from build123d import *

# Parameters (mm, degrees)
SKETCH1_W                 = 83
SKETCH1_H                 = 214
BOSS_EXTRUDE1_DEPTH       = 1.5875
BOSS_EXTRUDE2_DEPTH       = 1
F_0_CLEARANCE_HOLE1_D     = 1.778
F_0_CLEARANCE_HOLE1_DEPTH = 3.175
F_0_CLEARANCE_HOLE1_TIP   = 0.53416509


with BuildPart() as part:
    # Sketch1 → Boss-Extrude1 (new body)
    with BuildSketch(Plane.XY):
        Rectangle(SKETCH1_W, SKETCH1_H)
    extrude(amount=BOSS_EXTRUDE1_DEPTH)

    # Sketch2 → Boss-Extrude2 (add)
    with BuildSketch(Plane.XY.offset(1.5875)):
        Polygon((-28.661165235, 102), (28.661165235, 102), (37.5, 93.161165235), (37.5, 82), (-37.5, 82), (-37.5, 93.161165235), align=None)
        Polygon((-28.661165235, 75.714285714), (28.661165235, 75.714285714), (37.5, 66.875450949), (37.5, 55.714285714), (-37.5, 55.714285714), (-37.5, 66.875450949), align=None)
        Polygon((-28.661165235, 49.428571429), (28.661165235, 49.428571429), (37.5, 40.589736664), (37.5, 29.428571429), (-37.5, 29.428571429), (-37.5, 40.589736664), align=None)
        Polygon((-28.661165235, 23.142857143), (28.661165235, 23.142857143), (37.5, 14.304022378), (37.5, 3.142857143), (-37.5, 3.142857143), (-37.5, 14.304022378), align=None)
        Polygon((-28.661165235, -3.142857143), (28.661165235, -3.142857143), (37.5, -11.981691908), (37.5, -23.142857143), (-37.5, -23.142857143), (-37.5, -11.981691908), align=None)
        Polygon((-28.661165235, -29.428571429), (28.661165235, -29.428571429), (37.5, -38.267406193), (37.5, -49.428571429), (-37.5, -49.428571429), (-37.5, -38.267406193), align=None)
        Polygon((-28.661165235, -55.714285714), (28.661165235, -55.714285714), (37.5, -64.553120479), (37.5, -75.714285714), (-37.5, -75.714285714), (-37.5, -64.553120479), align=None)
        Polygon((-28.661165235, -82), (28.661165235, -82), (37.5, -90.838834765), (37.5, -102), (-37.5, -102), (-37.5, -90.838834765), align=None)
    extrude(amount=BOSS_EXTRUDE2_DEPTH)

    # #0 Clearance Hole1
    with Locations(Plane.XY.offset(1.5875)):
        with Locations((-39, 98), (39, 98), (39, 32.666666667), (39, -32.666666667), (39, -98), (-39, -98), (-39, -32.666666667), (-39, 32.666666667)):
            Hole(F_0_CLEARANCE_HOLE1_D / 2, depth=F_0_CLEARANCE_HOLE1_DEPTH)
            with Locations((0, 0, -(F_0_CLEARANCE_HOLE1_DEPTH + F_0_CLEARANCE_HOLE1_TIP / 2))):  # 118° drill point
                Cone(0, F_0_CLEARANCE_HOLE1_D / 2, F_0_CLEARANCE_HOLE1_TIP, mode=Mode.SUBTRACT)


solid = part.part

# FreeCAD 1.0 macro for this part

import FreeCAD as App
import Part
import Sketcher


def add_polygon(sketch, points):
    """Adds a closed chain of lines whose ends are joined by coincident constraints."""
    first, n = sketch.GeometryCount, len(points)
    for a, b in zip(points, points[1:] + points[:1]):
        sketch.addGeometry(Part.LineSegment(App.Vector(*a, 0), App.Vector(*b, 0)), False)
    for i in range(n):
        sketch.addConstraint(Sketcher.Constraint("Coincident", first + i, 2, first + (i + 1) % n, 1))

doc = App.newDocument("Part")
body = doc.addObject("PartDesign::Body", "Body")

sketch1 = doc.addObject("Sketcher::SketchObject", "Sketch")
body.addObject(sketch1)
sketch1.AttachmentSupport = (doc.XY_Plane, [""])
sketch1.MapMode = "FlatFace"
add_polygon(sketch1, [(-41.5, 107), (-41.5, -107), (41.5, -107), (41.5, 107)])
sketch1.addConstraint(Sketcher.Constraint("Vertical", 0))
sketch1.addConstraint(Sketcher.Constraint("Horizontal", 1))
sketch1.addConstraint(Sketcher.Constraint("Vertical", 2))
sketch1.addConstraint(Sketcher.Constraint("Horizontal", 3))
sketch1.addConstraint(Sketcher.Constraint("Symmetric", 0, 2, 2, 2, -1, 1))
sketch1.addConstraint(Sketcher.Constraint("DistanceX", 1, 1, 1, 2, 83.0))
sketch1.addConstraint(Sketcher.Constraint("DistanceY", 0, 2, 0, 1, 214.0))
pad1 = doc.addObject("PartDesign::Pad", "Pad")
body.addObject(pad1)
pad1.Profile = sketch1
pad1.Length = 1.5875

sketch2 = doc.addObject("Sketcher::SketchObject", "Sketch001")
body.addObject(sketch2)
sketch2.AttachmentSupport = (doc.XY_Plane, [""])
sketch2.MapMode = "FlatFace"
sketch2.AttachmentOffset = App.Placement(App.Vector(0, 0, 1.5875), App.Rotation())
add_polygon(sketch2, [(28.661165, 102), (-28.661165, 102), (-37.5, 93.161165), (-37.5, 82), (37.5, 82), (37.5, 93.161165)])
add_polygon(sketch2, [(28.661165, 75.714286), (-28.661165, 75.714286), (-37.5, 66.875451), (-37.5, 55.714286), (37.5, 55.714286), (37.5, 66.875451)])
add_polygon(sketch2, [(28.661165, 49.428571), (-28.661165, 49.428571), (-37.5, 40.589737), (-37.5, 29.428571), (37.5, 29.428571), (37.5, 40.589737)])
add_polygon(sketch2, [(28.661165, 23.142857), (-28.661165, 23.142857), (-37.5, 14.304022), (-37.5, 3.142857), (37.5, 3.142857), (37.5, 14.304022)])
add_polygon(sketch2, [(28.661165, -3.142857), (-28.661165, -3.142857), (-37.5, -11.981692), (-37.5, -23.142857), (37.5, -23.142857), (37.5, -11.981692)])
add_polygon(sketch2, [(28.661165, -29.428571), (-28.661165, -29.428571), (-37.5, -38.267406), (-37.5, -49.428571), (37.5, -49.428571), (37.5, -38.267406)])
add_polygon(sketch2, [(28.661165, -55.714286), (-28.661165, -55.714286), (-37.5, -64.55312), (-37.5, -75.714286), (37.5, -75.714286), (37.5, -64.55312)])
add_polygon(sketch2, [(28.661165, -82), (-28.661165, -82), (-37.5, -90.838835), (-37.5, -102), (37.5, -102), (37.5, -90.838835)])
sketch2.addConstraint(Sketcher.Constraint("Horizontal", 0))
sketch2.addConstraint(Sketcher.Constraint("Vertical", 2))
sketch2.addConstraint(Sketcher.Constraint("Horizontal", 3))
sketch2.addConstraint(Sketcher.Constraint("Vertical", 4))
sketch2.addConstraint(Sketcher.Constraint("Horizontal", 6))
sketch2.addConstraint(Sketcher.Constraint("Vertical", 8))
sketch2.addConstraint(Sketcher.Constraint("Horizontal", 9))
sketch2.addConstraint(Sketcher.Constraint("Vertical", 10))
sketch2.addConstraint(Sketcher.Constraint("Horizontal", 12))
sketch2.addConstraint(Sketcher.Constraint("Vertical", 14))
sketch2.addConstraint(Sketcher.Constraint("Horizontal", 15))
sketch2.addConstraint(Sketcher.Constraint("Vertical", 16))
sketch2.addConstraint(Sketcher.Constraint("Horizontal", 18))
sketch2.addConstraint(Sketcher.Constraint("Vertical", 20))
sketch2.addConstraint(Sketcher.Constraint("Horizontal", 21))
sketch2.addConstraint(Sketcher.Constraint("Vertical", 22))
sketch2.addConstraint(Sketcher.Constraint("Horizontal", 24))
sketch2.addConstraint(Sketcher.Constraint("Vertical", 26))
sketch2.addConstraint(Sketcher.Constraint("Horizontal", 27))
sketch2.addConstraint(Sketcher.Constraint("Vertical", 28))
sketch2.addConstraint(Sketcher.Constraint("Horizontal", 30))
sketch2.addConstraint(Sketcher.Constraint("Vertical", 32))
sketch2.addConstraint(Sketcher.Constraint("Horizontal", 33))
sketch2.addConstraint(Sketcher.Constraint("Vertical", 34))
sketch2.addConstraint(Sketcher.Constraint("Horizontal", 36))
sketch2.addConstraint(Sketcher.Constraint("Vertical", 38))
sketch2.addConstraint(Sketcher.Constraint("Horizontal", 39))
sketch2.addConstraint(Sketcher.Constraint("Vertical", 40))
sketch2.addConstraint(Sketcher.Constraint("Horizontal", 42))
sketch2.addConstraint(Sketcher.Constraint("Vertical", 44))
sketch2.addConstraint(Sketcher.Constraint("Horizontal", 45))
sketch2.addConstraint(Sketcher.Constraint("Vertical", 46))
sketch2.addConstraint(Sketcher.Constraint("Symmetric", 1, 2, 4, 2, -2))
sketch2.addConstraint(Sketcher.Constraint("Symmetric", 7, 2, 10, 2, -2))
sketch2.addConstraint(Sketcher.Constraint("Symmetric", 13, 2, 16, 2, -2))
sketch2.addConstraint(Sketcher.Constraint("Symmetric", 19, 2, 22, 2, -2))
sketch2.addConstraint(Sketcher.Constraint("Symmetric", 25, 2, 28, 2, -2))
sketch2.addConstraint(Sketcher.Constraint("Symmetric", 31, 2, 34, 2, -2))
sketch2.addConstraint(Sketcher.Constraint("Symmetric", 37, 2, 40, 2, -2))
sketch2.addConstraint(Sketcher.Constraint("Symmetric", 43, 2, 46, 2, -2))
sketch2.addConstraint(Sketcher.Constraint("Perpendicular", 1, 5))
sketch2.addConstraint(Sketcher.Constraint("Perpendicular", 5, 7))
sketch2.addConstraint(Sketcher.Constraint("Perpendicular", 7, 11))
sketch2.addConstraint(Sketcher.Constraint("Perpendicular", 11, 13))
sketch2.addConstraint(Sketcher.Constraint("Perpendicular", 13, 17))
sketch2.addConstraint(Sketcher.Constraint("Perpendicular", 17, 19))
sketch2.addConstraint(Sketcher.Constraint("Perpendicular", 19, 23))
sketch2.addConstraint(Sketcher.Constraint("Perpendicular", 23, 25))
sketch2.addConstraint(Sketcher.Constraint("Perpendicular", 25, 29))
sketch2.addConstraint(Sketcher.Constraint("Perpendicular", 29, 31))
sketch2.addConstraint(Sketcher.Constraint("Perpendicular", 31, 35))
sketch2.addConstraint(Sketcher.Constraint("Perpendicular", 35, 37))
sketch2.addConstraint(Sketcher.Constraint("Perpendicular", 37, 41))
sketch2.addConstraint(Sketcher.Constraint("Perpendicular", 41, 43))
sketch2.addConstraint(Sketcher.Constraint("Perpendicular", 43, 47))
sketch2.addConstraint(Sketcher.Constraint("Vertical", 0, 2, 6, 2))
sketch2.addConstraint(Sketcher.Constraint("Vertical", 2, 2, 7, 2))
sketch2.addConstraint(Sketcher.Constraint("Vertical", 6, 2, 12, 2))
sketch2.addConstraint(Sketcher.Constraint("Vertical", 8, 2, 13, 2))
sketch2.addConstraint(Sketcher.Constraint("Vertical", 12, 2, 18, 2))
sketch2.addConstraint(Sketcher.Constraint("Vertical", 14, 2, 19, 2))
sketch2.addConstraint(Sketcher.Constraint("Vertical", 18, 2, 24, 2))
sketch2.addConstraint(Sketcher.Constraint("Vertical", 20, 2, 25, 2))
sketch2.addConstraint(Sketcher.Constraint("Vertical", 24, 2, 30, 2))
sketch2.addConstraint(Sketcher.Constraint("Vertical", 26, 2, 31, 2))
sketch2.addConstraint(Sketcher.Constraint("Vertical", 30, 2, 36, 2))
sketch2.addConstraint(Sketcher.Constraint("Vertical", 32, 2, 37, 2))
sketch2.addConstraint(Sketcher.Constraint("Vertical", 36, 2, 42, 2))
sketch2.addConstraint(Sketcher.Constraint("Vertical", 38, 2, 43, 2))
sketch2.addConstraint(Sketcher.Constraint("Equal", 4, 8))
sketch2.addConstraint(Sketcher.Constraint("Equal", 10, 14))
sketch2.addConstraint(Sketcher.Constraint("Equal", 16, 20))
sketch2.addConstraint(Sketcher.Constraint("Equal", 22, 26))
sketch2.addConstraint(Sketcher.Constraint("Equal", 28, 32))
sketch2.addConstraint(Sketcher.Constraint("Equal", 34, 38))
sketch2.addConstraint(Sketcher.Constraint("Equal", 40, 44))
sketch2.addConstraint(Sketcher.Constraint("Equal", 1, 5))
sketch2.addConstraint(Sketcher.Constraint("DistanceX", 3, 1, 3, 2, 75.0))
sketch2.addConstraint(Sketcher.Constraint("DistanceY", -1, 1, 0, 2, 102.0))
sketch2.addConstraint(Sketcher.Constraint("DistanceY", -1, 1, 2, 2, 82.0))
sketch2.addConstraint(Sketcher.Constraint("DistanceY", 42, 2, -1, 1, 82.0))
sketch2.addConstraint(Sketcher.Constraint("Distance", 1, 12.5))
sketch2.addConstraint(Sketcher.Constraint("DistanceY", -1, 1, 7, 2, 66.875451))
sketch2.addConstraint(Sketcher.Constraint("DistanceY", -1, 1, 12, 2, 49.428571))
sketch2.addConstraint(Sketcher.Constraint("DistanceY", 25, 2, -1, 1, 11.981692))
sketch2.addConstraint(Sketcher.Constraint("DistanceY", 30, 2, -1, 1, 29.428571))
sketch2.addConstraint(Sketcher.Constraint("DistanceY", 37, 2, -1, 1, 64.55312))
sketch2.addConstraint(Sketcher.Constraint("DistanceY", 18, 2, 13, 2, 17.44688))
pad2 = doc.addObject("PartDesign::Pad", "Pad001")
body.addObject(pad2)
pad2.Profile = sketch2
pad2.Length = 1

sketch3 = doc.addObject("Sketcher::SketchObject", "Sketch002")
body.addObject(sketch3)
sketch3.AttachmentSupport = (doc.XY_Plane, [""])
sketch3.MapMode = "FlatFace"
sketch3.AttachmentOffset = App.Placement(App.Vector(0, 0, 1.5875), App.Rotation())
sketch3.addGeometry(Part.Circle(App.Vector(-39, 98, 0), App.Vector(0, 0, 1), 0.889), False)
sketch3.addGeometry(Part.Circle(App.Vector(39, 98, 0), App.Vector(0, 0, 1), 0.889), False)
sketch3.addGeometry(Part.Circle(App.Vector(39, 32.666667, 0), App.Vector(0, 0, 1), 0.889), False)
sketch3.addGeometry(Part.Circle(App.Vector(39, -32.666667, 0), App.Vector(0, 0, 1), 0.889), False)
sketch3.addGeometry(Part.Circle(App.Vector(39, -98, 0), App.Vector(0, 0, 1), 0.889), False)
sketch3.addGeometry(Part.Circle(App.Vector(-39, -98, 0), App.Vector(0, 0, 1), 0.889), False)
sketch3.addGeometry(Part.Circle(App.Vector(-39, -32.666667, 0), App.Vector(0, 0, 1), 0.889), False)
sketch3.addGeometry(Part.Circle(App.Vector(-39, 32.666667, 0), App.Vector(0, 0, 1), 0.889), False)
sketch3.addConstraint(Sketcher.Constraint("Equal", 0, 1))
sketch3.addConstraint(Sketcher.Constraint("Equal", 1, 2))
sketch3.addConstraint(Sketcher.Constraint("Equal", 2, 3))
sketch3.addConstraint(Sketcher.Constraint("Equal", 3, 4))
sketch3.addConstraint(Sketcher.Constraint("Equal", 4, 5))
sketch3.addConstraint(Sketcher.Constraint("Equal", 5, 6))
sketch3.addConstraint(Sketcher.Constraint("Equal", 6, 7))
sketch3.addConstraint(Sketcher.Constraint("Symmetric", 0, 3, 4, 3, -1, 1))
sketch3.addConstraint(Sketcher.Constraint("Symmetric", 1, 3, 5, 3, -1, 1))
sketch3.addConstraint(Sketcher.Constraint("Symmetric", 2, 3, 6, 3, -1, 1))
sketch3.addConstraint(Sketcher.Constraint("Symmetric", 3, 3, 7, 3, -1, 1))
sketch3.addConstraint(Sketcher.Constraint("Symmetric", 0, 3, 1, 3, -2))
sketch3.addConstraint(Sketcher.Constraint("Symmetric", 3, 3, 6, 3, -2))
sketch3.addConstraint(Sketcher.Constraint("Vertical", 1, 3, 2, 3))
sketch3.addConstraint(Sketcher.Constraint("Diameter", 0, 1.778))
sketch3.addConstraint(Sketcher.Constraint("DistanceX", 0, 3, -1, 1, 39.0))
sketch3.addConstraint(Sketcher.Constraint("DistanceY", -1, 1, 0, 3, 98.0))
sketch3.addConstraint(Sketcher.Constraint("DistanceY", -1, 1, 2, 3, 32.666667))
doc.recompute()
hole = doc.addObject("PartDesign::Hole", "Hole")
body.addObject(hole)
hole.Profile = sketch3
hole.ThreadType = "None"
hole.Diameter = 1.778
hole.DepthType = "Dimension"
hole.Depth = 3.175
hole.DrillPoint = "Angled"
hole.DrillPointAngle = 118

doc.recompute()
